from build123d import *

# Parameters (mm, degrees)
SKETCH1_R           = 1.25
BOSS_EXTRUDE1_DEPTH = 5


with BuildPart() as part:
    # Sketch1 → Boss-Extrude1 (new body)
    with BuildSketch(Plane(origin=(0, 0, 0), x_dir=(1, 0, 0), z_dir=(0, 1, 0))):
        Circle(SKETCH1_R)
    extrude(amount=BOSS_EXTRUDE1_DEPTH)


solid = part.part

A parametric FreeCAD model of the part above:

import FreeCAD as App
import Part
import Sketcher

V = App.Vector
Q = App.Units.Quantity

doc = App.newDocument("Part")
params = doc.addObject("Spreadsheet::Sheet", "Params")
for row, (alias, value) in enumerate([
    ("sketch1_diameter", "2.5 mm"),
    ("pad1_length", "5 mm"),
], start=1):
    params.set(f"A{row}", alias)
    params.set(f"B{row}", "=" + value)
    params.setAlias(f"B{row}", alias)

body = doc.addObject("PartDesign::Body", "Body")

sketch1 = body.newObject("Sketcher::SketchObject", "Sketch")
sketch1.AttachmentSupport = (doc.getObject("XZ_Plane"), [""])
sketch1.MapMode = "FlatFace"
sketch1.addGeometry(Part.Circle(V(0, 0, 0), V(0, 0, 1), 1.2), False)
sketch1.addConstraint(Sketcher.Constraint("Coincident", 0, 3, -1, 1))
sketch1.addConstraint(Sketcher.Constraint("Diameter", 0, Q("2.5 mm")))
sketch1.setExpression("Constraints[1]", "Params.sketch1_diameter")
pad1 = body.newObject("PartDesign::Pad", "Pad")
pad1.Profile = sketch1
pad1.setExpression("Length", "Params.pad1_length")
pad1.Reversed = True

doc.recompute()
